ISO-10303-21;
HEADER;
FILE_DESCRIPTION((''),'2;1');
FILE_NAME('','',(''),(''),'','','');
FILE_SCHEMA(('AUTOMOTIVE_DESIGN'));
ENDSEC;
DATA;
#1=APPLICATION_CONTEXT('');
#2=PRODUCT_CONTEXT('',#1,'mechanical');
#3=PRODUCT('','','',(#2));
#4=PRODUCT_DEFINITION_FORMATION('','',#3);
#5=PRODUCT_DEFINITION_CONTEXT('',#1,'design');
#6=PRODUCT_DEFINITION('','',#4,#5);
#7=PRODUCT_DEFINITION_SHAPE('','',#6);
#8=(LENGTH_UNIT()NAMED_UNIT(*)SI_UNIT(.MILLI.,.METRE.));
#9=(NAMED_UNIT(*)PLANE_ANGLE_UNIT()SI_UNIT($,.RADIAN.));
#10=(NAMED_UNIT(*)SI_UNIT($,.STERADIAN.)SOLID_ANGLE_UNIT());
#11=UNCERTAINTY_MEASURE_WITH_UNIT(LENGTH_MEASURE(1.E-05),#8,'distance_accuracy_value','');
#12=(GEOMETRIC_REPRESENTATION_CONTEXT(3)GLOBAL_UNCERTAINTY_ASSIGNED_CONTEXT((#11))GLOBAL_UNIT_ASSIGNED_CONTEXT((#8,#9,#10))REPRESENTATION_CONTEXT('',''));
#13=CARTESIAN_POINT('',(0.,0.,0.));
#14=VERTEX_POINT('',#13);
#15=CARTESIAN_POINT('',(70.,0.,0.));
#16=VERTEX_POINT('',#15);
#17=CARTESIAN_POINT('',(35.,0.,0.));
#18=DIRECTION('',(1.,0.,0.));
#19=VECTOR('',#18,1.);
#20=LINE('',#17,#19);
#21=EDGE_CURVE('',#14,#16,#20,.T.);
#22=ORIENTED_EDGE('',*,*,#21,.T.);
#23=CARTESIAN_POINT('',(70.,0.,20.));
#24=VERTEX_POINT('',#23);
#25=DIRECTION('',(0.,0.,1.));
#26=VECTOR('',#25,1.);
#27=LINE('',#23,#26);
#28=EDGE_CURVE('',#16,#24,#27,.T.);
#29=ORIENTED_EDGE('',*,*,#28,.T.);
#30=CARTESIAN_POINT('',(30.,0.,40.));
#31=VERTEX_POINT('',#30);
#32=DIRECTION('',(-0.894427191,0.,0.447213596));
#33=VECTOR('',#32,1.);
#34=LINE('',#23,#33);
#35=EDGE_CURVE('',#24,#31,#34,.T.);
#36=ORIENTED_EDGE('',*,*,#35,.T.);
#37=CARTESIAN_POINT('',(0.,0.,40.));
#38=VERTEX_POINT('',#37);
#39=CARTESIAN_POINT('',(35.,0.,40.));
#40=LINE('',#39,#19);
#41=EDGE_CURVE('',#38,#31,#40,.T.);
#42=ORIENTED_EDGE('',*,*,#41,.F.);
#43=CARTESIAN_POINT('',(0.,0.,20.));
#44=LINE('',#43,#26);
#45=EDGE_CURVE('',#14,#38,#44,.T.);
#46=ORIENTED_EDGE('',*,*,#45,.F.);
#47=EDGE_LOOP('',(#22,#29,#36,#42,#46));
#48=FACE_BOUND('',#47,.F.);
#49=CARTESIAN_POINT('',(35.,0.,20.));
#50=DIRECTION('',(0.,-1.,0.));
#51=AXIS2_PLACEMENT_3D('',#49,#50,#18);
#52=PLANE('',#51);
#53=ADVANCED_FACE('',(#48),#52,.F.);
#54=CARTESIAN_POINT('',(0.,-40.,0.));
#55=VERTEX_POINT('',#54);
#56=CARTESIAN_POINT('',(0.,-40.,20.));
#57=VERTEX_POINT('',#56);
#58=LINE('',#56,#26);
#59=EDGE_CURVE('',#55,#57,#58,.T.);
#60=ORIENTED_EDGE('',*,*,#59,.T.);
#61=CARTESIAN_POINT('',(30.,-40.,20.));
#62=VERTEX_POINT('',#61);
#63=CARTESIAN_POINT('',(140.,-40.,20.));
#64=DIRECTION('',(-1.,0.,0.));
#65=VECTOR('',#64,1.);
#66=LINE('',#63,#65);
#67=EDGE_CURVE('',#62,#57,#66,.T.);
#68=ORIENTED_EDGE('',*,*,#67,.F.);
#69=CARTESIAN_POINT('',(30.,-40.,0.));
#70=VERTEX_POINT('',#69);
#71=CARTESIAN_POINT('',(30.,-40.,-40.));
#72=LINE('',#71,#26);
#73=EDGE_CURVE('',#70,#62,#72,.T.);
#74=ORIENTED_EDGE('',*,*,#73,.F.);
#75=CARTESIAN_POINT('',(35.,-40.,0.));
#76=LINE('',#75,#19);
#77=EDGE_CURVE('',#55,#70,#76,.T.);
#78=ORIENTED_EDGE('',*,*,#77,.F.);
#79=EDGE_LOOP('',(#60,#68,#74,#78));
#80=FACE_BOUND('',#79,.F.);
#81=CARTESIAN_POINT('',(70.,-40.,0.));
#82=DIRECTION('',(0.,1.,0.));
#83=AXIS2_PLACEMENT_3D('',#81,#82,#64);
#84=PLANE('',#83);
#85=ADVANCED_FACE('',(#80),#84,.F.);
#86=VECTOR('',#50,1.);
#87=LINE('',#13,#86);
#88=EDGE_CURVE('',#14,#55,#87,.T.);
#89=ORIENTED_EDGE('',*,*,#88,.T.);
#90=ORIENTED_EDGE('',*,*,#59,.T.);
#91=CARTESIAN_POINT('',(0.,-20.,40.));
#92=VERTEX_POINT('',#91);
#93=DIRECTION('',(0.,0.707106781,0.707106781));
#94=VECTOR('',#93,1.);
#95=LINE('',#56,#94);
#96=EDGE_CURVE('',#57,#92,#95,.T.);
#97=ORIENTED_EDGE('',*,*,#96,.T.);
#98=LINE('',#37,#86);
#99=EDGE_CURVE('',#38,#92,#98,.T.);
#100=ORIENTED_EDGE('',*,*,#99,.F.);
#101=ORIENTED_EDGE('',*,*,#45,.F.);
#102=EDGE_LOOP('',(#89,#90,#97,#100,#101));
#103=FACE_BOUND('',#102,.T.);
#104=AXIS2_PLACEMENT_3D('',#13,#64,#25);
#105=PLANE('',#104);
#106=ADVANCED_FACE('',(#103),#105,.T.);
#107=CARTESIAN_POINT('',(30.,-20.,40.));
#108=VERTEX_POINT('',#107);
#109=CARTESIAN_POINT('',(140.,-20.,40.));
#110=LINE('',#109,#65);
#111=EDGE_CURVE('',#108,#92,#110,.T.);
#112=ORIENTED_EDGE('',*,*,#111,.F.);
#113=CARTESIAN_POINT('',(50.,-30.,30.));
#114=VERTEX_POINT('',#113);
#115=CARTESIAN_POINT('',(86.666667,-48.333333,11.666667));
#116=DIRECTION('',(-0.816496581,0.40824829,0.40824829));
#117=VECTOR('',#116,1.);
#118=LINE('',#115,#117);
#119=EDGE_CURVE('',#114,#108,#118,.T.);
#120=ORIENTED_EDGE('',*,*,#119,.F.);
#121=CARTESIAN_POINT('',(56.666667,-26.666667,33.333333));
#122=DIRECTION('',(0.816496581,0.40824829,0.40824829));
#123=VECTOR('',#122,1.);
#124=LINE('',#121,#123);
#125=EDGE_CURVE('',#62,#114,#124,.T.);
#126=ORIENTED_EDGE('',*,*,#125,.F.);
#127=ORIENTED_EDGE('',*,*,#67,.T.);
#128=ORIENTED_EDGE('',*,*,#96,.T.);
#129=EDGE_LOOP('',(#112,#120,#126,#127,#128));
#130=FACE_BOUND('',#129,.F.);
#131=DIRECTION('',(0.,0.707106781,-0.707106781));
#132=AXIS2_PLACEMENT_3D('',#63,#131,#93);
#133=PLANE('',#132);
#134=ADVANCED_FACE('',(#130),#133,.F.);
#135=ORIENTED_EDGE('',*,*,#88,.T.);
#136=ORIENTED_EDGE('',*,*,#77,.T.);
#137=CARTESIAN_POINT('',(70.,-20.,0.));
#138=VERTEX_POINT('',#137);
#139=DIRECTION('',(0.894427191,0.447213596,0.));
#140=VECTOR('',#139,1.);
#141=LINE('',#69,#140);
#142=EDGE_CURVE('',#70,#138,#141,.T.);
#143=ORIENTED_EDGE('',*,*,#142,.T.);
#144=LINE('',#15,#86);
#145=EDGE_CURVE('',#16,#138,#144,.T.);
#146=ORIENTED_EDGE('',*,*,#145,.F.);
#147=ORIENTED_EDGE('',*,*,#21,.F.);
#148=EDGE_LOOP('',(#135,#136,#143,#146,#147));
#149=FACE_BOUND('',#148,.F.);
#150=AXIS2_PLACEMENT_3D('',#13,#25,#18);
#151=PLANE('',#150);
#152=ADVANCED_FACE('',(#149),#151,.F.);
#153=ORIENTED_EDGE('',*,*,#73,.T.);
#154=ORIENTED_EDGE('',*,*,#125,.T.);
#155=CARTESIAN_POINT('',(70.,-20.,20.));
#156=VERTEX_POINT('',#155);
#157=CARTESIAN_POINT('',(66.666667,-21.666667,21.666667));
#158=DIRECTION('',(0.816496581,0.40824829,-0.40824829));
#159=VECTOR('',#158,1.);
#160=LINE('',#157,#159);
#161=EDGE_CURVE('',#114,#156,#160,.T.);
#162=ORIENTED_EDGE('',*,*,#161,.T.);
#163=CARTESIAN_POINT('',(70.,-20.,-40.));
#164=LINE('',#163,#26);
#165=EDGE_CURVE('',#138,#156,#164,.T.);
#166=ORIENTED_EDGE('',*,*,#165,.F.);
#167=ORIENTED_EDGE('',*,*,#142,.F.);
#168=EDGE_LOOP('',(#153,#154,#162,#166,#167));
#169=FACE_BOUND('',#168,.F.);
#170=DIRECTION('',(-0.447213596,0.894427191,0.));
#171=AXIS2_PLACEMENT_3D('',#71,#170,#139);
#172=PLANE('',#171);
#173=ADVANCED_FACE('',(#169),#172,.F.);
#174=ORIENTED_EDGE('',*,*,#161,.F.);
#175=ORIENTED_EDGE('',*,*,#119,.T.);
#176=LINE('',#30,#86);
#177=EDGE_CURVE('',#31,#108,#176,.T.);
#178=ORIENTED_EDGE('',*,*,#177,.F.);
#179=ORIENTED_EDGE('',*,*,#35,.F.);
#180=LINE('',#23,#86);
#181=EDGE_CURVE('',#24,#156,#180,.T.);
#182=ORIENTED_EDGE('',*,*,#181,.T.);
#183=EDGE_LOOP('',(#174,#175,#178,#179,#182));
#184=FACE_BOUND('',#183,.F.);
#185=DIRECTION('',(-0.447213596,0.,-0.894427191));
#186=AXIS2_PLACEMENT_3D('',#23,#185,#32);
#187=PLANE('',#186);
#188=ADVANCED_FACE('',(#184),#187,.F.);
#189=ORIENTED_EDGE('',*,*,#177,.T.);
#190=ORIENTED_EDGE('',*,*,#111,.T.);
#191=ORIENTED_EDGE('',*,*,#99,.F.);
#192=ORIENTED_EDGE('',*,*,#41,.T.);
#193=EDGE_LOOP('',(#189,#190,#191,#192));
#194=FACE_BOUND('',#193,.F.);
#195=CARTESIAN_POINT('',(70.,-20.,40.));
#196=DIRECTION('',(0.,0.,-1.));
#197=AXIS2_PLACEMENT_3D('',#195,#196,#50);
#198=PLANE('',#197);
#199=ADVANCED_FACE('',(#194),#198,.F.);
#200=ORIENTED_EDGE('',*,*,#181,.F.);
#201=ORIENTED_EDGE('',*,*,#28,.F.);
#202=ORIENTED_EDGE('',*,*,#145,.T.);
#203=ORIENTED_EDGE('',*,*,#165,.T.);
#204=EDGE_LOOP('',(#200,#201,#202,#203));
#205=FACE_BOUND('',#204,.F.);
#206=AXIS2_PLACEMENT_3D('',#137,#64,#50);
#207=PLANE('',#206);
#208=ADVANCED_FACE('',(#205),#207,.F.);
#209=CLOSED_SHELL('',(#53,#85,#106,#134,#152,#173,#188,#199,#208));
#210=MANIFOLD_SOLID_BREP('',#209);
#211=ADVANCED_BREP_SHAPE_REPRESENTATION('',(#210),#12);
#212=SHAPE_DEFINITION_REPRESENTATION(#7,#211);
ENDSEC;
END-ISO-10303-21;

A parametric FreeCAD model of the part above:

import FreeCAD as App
import Part
import Sketcher

V = App.Vector
Q = App.Units.Quantity

doc = App.newDocument("Part")
body = doc.addObject("PartDesign::Body", "Body")

# Sketch on XZ plane
sketch1 = body.newObject("Sketcher::SketchObject", "Sketch")
sketch1.AttachmentSupport = (doc.getObject("XZ_Plane"), [""])
sketch1.MapMode = "FlatFace"
sketch1.addGeometry([
    Part.LineSegment(V(0, 40, 0), V(0, 0, 0)),
    Part.LineSegment(V(0, 0, 0), V(70, 0, 0)),
    Part.LineSegment(V(70, 0, 0), V(70, 40, 0)),
    Part.LineSegment(V(70, 40, 0), V(0, 40, 0)),
], False)
sketch1.addConstraint([
    Sketcher.Constraint("Coincident", 0, 2, 1, 1),
    Sketcher.Constraint("Coincident", 1, 2, 2, 1),
    Sketcher.Constraint("Coincident", 2, 2, 3, 1),
    Sketcher.Constraint("Coincident", 3, 2, 0, 1),
    Sketcher.Constraint("Vertical", 0),
    Sketcher.Constraint("Horizontal", 1),
    Sketcher.Constraint("Vertical", 2),
    Sketcher.Constraint("Horizontal", 3),
    Sketcher.Constraint("Coincident", 0, 2, -1, 1),
    Sketcher.Constraint("DistanceX", 1, 1, 1, 2, Q("70 mm")),
    Sketcher.Constraint("DistanceY", 0, 2, 0, 1, Q("40 mm")),
])
pad1 = body.newObject("PartDesign::Pad", "Pad")
pad1.Profile = sketch1
pad1.Length = 40

# Sketch on YZ plane
sketch2 = body.newObject("Sketcher::SketchObject", "Sketch001")
sketch2.AttachmentSupport = (doc.getObject("YZ_Plane"), [""])
sketch2.MapMode = "FlatFace"
sketch2.AttachmentOffset = App.Placement(V(0, 0, 70), App.Rotation())
sketch2.addGeometry([
    Part.LineSegment(V(-20, 40, 0), V(-40, 40, 0)),
    Part.LineSegment(V(-40, 40, 0), V(-40, 20, 0)),
    Part.LineSegment(V(-40, 20, 0), V(-20, 40, 0)),
], False)
sketch2.addConstraint([
    Sketcher.Constraint("Coincident", 0, 2, 1, 1),
    Sketcher.Constraint("Coincident", 1, 2, 2, 1),
    Sketcher.Constraint("Coincident", 2, 2, 0, 1),
    Sketcher.Constraint("Horizontal", 0),
    Sketcher.Constraint("Vertical", 1),
    Sketcher.Constraint("Equal", 0, 1),
    Sketcher.Constraint("DistanceX", 0, 2, 0, 1, Q("20 mm")),
    Sketcher.Constraint("DistanceX", 0, 2, -1, 1, Q("40 mm")),
    Sketcher.Constraint("DistanceY", -1, 1, 0, 2, Q("40 mm")),
])
pad2 = body.newObject("PartDesign::Pad", "Pad001")
pad2.Profile = sketch2
pad2.Length = 70

# Sketch on YZ plane
sketch3 = body.newObject("Sketcher::SketchObject", "Sketch002")
sketch3.AttachmentSupport = (doc.getObject("YZ_Plane"), [""])
sketch3.MapMode = "FlatFace"
sketch3.AttachmentOffset = App.Placement(V(0, 0, 140), App.Rotation())
sketch3.addGeometry([
    Part.LineSegment(V(-20, 40, 0), V(-40, 40, 0)),
    Part.LineSegment(V(-40, 40, 0), V(-40, 20, 0)),
    Part.LineSegment(V(-40, 20, 0), V(-20, 40, 0)),
], False)
sketch3.addConstraint([
    Sketcher.Constraint("Coincident", 0, 2, 1, 1),
    Sketcher.Constraint("Coincident", 1, 2, 2, 1),
    Sketcher.Constraint("Coincident", 2, 2, 0, 1),
    Sketcher.Constraint("Horizontal", 0),
    Sketcher.Constraint("Vertical", 1),
    Sketcher.Constraint("Equal", 0, 1),
    Sketcher.Constraint("DistanceX", 0, 2, 0, 1, Q("20 mm")),
    Sketcher.Constraint("DistanceX", 0, 2, -1, 1, Q("40 mm")),
    Sketcher.Constraint("DistanceY", -1, 1, 0, 2, Q("40 mm")),
])
pocket1 = body.newObject("PartDesign::Pocket", "Pocket")
pocket1.Profile = sketch3
pocket1.Length = 140

# Sketch on XZ plane
sketch4 = body.newObject("Sketcher::SketchObject", "Sketch003")
sketch4.AttachmentSupport = (doc.getObject("XZ_Plane"), [""])
sketch4.MapMode = "FlatFace"
sketch4.addGeometry([
    Part.LineSegment(V(70, 40, 0), V(70, 20, 0)),
    Part.LineSegment(V(70, 20, 0), V(30, 40, 0)),
    Part.LineSegment(V(30, 40, 0), V(70, 40, 0)),
], False)
sketch4.addConstraint([
    Sketcher.Constraint("Coincident", 0, 2, 1, 1),
    Sketcher.Constraint("Coincident", 1, 2, 2, 1),
    Sketcher.Constraint("Coincident", 2, 2, 0, 1),
    Sketcher.Constraint("Vertical", 0),
    Sketcher.Constraint("Horizontal", 2),
    Sketcher.Constraint("DistanceX", 2, 1, 2, 2, Q("40 mm")),
    Sketcher.Constraint("DistanceY", 0, 2, 0, 1, Q("20 mm")),
    Sketcher.Constraint("DistanceX", -1, 1, 0, 2, Q("70 mm")),
    Sketcher.Constraint("DistanceY", -1, 1, 0, 2, Q("20 mm")),
])
pocket2 = body.newObject("PartDesign::Pocket", "Pocket001")
pocket2.Profile = sketch4
pocket2.Length = 40
pocket2.Reversed = True

# Sketch on XY plane
sketch5 = body.newObject("Sketcher::SketchObject", "Sketch004")
sketch5.AttachmentSupport = (doc.getObject("XY_Plane"), [""])
sketch5.MapMode = "FlatFace"
sketch5.addGeometry([
    Part.LineSegment(V(70, -20, 0), V(70, -40, 0)),
    Part.LineSegment(V(70, -40, 0), V(30, -40, 0)),
    Part.LineSegment(V(30, -40, 0), V(70, -20, 0)),
], False)
sketch5.addConstraint([
    Sketcher.Constraint("Coincident", 0, 2, 1, 1),
    Sketcher.Constraint("Coincident", 1, 2, 2, 1),
    Sketcher.Constraint("Coincident", 2, 2, 0, 1),
    Sketcher.Constraint("Vertical", 0),
    Sketcher.Constraint("Horizontal", 1),
    Sketcher.Constraint("DistanceX", 1, 2, 1, 1, Q("40 mm")),
    Sketcher.Constraint("DistanceY", 0, 2, 0, 1, Q("20 mm")),
    Sketcher.Constraint("DistanceX", -1, 1, 0, 2, Q("70 mm")),
    Sketcher.Constraint("DistanceY", 0, 2, -1, 1, Q("40 mm")),
])
pad3 = body.newObject("PartDesign::Pad", "Pad002")
pad3.Profile = sketch5
pad3.Length = 40
pad3.Reversed = True

# Sketch on XY plane
sketch6 = body.newObject("Sketcher::SketchObject", "Sketch005")
sketch6.AttachmentSupport = (doc.getObject("XY_Plane"), [""])
sketch6.MapMode = "FlatFace"
sketch6.AttachmentOffset = App.Placement(V(0, 0, -40), App.Rotation())
sketch6.addGeometry([
    Part.LineSegment(V(70, -20, 0), V(70, -40, 0)),
    Part.LineSegment(V(70, -40, 0), V(30, -40, 0)),
    Part.LineSegment(V(30, -40, 0), V(70, -20, 0)),
], False)
sketch6.addConstraint([
    Sketcher.Constraint("Coincident", 0, 2, 1, 1),
    Sketcher.Constraint("Coincident", 1, 2, 2, 1),
    Sketcher.Constraint("Coincident", 2, 2, 0, 1),
    Sketcher.Constraint("Vertical", 0),
    Sketcher.Constraint("Horizontal", 1),
    Sketcher.Constraint("DistanceX", 1, 2, 1, 1, Q("40 mm")),
    Sketcher.Constraint("DistanceY", 0, 2, 0, 1, Q("20 mm")),
    Sketcher.Constraint("DistanceX", -1, 1, 0, 2, Q("70 mm")),
    Sketcher.Constraint("DistanceY", 0, 2, -1, 1, Q("40 mm")),
])
pocket3 = body.newObject("PartDesign::Pocket", "Pocket002")
pocket3.Profile = sketch6
pocket3.Length = 80
pocket3.Reversed = True

# Sketch on an angled plane
sketch7 = body.newObject("Sketcher::SketchObject", "Sketch006")
sketch7.Placement = App.Placement(V(0, -30, 30), App.Rotation(V(1, 0, 0), V(0, 0.707106781, 0.707106781), V(0, -0.707106781, 0.707106781), "ZXY"))
sketch7.addGeometry([
    Part.LineSegment(V(50, 0, 0), V(30, 14, 0)),
    Part.LineSegment(V(30, 14, 0), V(30, -14, 0)),
    Part.LineSegment(V(30, -14, 0), V(50, 0, 0)),
], False)
sketch7.addConstraint([
    Sketcher.Constraint("Coincident", 0, 2, 1, 1),
    Sketcher.Constraint("Coincident", 1, 2, 2, 1),
    Sketcher.Constraint("Coincident", 2, 2, 0, 1),
    Sketcher.Constraint("Vertical", 1),
    Sketcher.Constraint("PointOnObject", 2, 2, -1),
    Sketcher.Constraint("Equal", 0, 2),
    Sketcher.Constraint("DistanceX", -1, 1, 0, 2, Q("30 mm")),
    Sketcher.Constraint("DistanceX", -1, 1, 2, 2, Q("50 mm")),
    Sketcher.Constraint("DistanceY", 1, 2, 1, 1, Q("28.284272 mm")),
])
pad4 = body.newObject("PartDesign::Pad", "Pad003")
pad4.Profile = sketch7
pad4.Length = 10
pad4.Reversed = True

doc.recompute()
